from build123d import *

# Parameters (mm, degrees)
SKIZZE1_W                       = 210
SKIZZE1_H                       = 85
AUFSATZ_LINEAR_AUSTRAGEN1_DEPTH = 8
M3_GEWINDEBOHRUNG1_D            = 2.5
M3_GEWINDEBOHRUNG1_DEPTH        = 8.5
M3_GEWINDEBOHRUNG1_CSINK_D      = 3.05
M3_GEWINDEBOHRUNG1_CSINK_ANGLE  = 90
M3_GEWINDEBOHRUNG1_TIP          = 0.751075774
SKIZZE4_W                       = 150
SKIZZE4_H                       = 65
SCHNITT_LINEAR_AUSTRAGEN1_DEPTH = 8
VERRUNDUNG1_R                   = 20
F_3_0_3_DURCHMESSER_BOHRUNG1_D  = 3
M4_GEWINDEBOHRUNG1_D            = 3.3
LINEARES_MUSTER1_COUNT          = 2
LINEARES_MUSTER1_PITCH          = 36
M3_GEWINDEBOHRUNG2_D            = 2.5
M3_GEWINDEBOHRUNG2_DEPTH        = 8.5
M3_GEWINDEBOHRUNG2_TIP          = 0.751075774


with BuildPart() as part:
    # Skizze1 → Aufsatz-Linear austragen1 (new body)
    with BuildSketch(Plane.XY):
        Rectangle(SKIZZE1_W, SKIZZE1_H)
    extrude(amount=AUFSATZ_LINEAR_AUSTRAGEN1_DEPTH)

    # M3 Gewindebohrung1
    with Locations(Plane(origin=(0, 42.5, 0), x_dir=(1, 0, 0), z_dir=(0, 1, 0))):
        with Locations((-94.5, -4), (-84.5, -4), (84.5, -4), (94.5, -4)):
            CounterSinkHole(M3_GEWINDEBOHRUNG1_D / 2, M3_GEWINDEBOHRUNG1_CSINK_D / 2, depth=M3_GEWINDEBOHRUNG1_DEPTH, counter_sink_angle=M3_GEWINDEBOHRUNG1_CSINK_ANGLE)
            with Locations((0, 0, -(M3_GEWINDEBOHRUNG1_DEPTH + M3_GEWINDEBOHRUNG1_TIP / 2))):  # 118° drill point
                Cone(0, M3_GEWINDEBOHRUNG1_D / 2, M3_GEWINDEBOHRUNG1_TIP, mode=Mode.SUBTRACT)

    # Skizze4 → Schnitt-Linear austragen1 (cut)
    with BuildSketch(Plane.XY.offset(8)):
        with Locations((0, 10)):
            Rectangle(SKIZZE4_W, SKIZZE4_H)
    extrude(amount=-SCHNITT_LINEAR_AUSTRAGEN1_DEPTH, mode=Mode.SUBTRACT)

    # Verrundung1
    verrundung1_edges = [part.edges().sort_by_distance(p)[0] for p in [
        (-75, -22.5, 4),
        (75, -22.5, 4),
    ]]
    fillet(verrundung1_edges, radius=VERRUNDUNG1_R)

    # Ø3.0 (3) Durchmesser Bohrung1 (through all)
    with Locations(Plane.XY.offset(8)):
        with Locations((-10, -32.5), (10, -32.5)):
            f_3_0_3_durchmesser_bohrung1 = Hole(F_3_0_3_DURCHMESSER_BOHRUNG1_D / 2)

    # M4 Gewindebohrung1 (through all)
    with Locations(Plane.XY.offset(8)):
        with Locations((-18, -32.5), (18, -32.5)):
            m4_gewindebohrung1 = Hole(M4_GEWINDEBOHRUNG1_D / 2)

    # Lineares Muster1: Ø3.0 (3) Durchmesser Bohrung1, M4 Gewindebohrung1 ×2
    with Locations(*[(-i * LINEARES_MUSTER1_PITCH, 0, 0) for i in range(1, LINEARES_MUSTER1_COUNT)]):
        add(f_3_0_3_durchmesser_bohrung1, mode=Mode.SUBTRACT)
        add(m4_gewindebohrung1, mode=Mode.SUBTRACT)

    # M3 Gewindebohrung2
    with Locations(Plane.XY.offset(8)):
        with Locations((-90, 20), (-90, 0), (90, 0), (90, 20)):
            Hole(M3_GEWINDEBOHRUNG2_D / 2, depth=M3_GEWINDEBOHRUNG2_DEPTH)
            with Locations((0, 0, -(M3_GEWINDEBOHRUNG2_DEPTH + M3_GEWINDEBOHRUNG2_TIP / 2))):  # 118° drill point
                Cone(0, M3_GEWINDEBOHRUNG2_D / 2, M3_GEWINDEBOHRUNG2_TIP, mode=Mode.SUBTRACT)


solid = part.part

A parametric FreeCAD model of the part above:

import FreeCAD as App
import Part
import Sketcher
from FreeCAD import Vector


def edges_at(feature, points):
    """Names of the edges that pass closest to the given points."""
    edges = feature.Shape.Edges
    near = lambda p: min(range(len(edges)), key=lambda i: edges[i].distToShape(Part.Vertex(*p))[0])
    return sorted({f"Edge{near(p) + 1}" for p in points})


def add_polygon(sketch, points):
    """Adds a closed chain of lines whose ends are joined by coincident constraints."""
    first, n = sketch.GeometryCount, len(points)
    for a, b in zip(points, points[1:] + points[:1]):
        sketch.addGeometry(Part.LineSegment(App.Vector(*a, 0), App.Vector(*b, 0)), False)
    for i in range(n):
        sketch.addConstraint(Sketcher.Constraint("Coincident", first + i, 2, first + (i + 1) % n, 1))

doc = App.newDocument("Part")
body = doc.addObject("PartDesign::Body", "Body")

# Sketch on XY plane
sketch1 = body.newObject("Sketcher::SketchObject", "Sketch")
sketch1.AttachmentSupport = (doc.getObject("XY_Plane"), [""])
sketch1.MapMode = "FlatFace"
add_polygon(sketch1, [(-105, 42), (-105, -42), (105, -42), (105, 42)])  # lines 0-3
sketch1.addConstraint(Sketcher.Constraint("Vertical", 0))
sketch1.addConstraint(Sketcher.Constraint("Horizontal", 1))
sketch1.addConstraint(Sketcher.Constraint("Vertical", 2))
sketch1.addConstraint(Sketcher.Constraint("Horizontal", 3))
sketch1.addConstraint(Sketcher.Constraint("Symmetric", 0, 2, 2, 2, -1, 1))
sketch1.addConstraint(Sketcher.Constraint("DistanceX", 1, 1, 1, 2, 210.0))
sketch1.addConstraint(Sketcher.Constraint("DistanceY", 0, 2, 0, 1, 85.0))
pad1 = body.newObject("PartDesign::Pad", "Pad")
pad1.Profile = sketch1
pad1.Length = 8

# Sketch on XZ plane
sketch2 = body.newObject("Sketcher::SketchObject", "Sketch001")
sketch2.AttachmentSupport = (doc.getObject("XZ_Plane"), [""])
sketch2.MapMode = "FlatFace"
sketch2.AttachmentOffset = App.Placement(Vector(0, 0, -42.5), App.Rotation())
sketch2.addGeometry(Part.Circle(Vector(-94.5, 4, 0), Vector(0, 0, 1), 1.2), False)
sketch2.addGeometry(Part.Circle(Vector(-84.5, 4, 0), Vector(0, 0, 1), 1.2), False)
sketch2.addGeometry(Part.Circle(Vector(84.5, 4, 0), Vector(0, 0, 1), 1.2), False)
sketch2.addGeometry(Part.Circle(Vector(94.5, 4, 0), Vector(0, 0, 1), 1.2), False)
sketch2.addConstraint(Sketcher.Constraint("Equal", 0, 1))
sketch2.addConstraint(Sketcher.Constraint("Equal", 1, 2))
sketch2.addConstraint(Sketcher.Constraint("Equal", 2, 3))
sketch2.addConstraint(Sketcher.Constraint("Symmetric", 1, 3, 2, 3, -2))
sketch2.addConstraint(Sketcher.Constraint("Symmetric", 0, 3, 3, 3, -2))
sketch2.addConstraint(Sketcher.Constraint("Horizontal", 0, 3, 1, 3))
sketch2.addConstraint(Sketcher.Constraint("Diameter", 0, 2.5))
sketch2.addConstraint(Sketcher.Constraint("DistanceY", -1, 1, 0, 3, 4.0))
sketch2.addConstraint(Sketcher.Constraint("DistanceX", 0, 3, 1, 3, 10.0))
sketch2.addConstraint(Sketcher.Constraint("DistanceX", 1, 3, 2, 3, 169.0))
doc.recompute()
hole = body.newObject("PartDesign::Hole", "Hole")
hole.Profile = sketch2
hole.ThreadType = "None"
hole.Diameter = 2.5
hole.DepthType = "Dimension"
hole.Depth = 8.5
hole.DrillPoint = "Angled"
hole.DrillPointAngle = 118
hole.HoleCutType = "Countersink"
hole.HoleCutDiameter = 3.05
hole.HoleCutCountersinkAngle = 90
hole.Reversed = True

# Sketch on XY plane
sketch3 = body.newObject("Sketcher::SketchObject", "Sketch002")
sketch3.AttachmentSupport = (doc.getObject("XY_Plane"), [""])
sketch3.MapMode = "FlatFace"
sketch3.AttachmentOffset = App.Placement(Vector(0, 0, 8), App.Rotation())
add_polygon(sketch3, [(-75, 42), (-75, -22), (75, -22), (75, 42)])  # lines 0-3
sketch3.addConstraint(Sketcher.Constraint("Vertical", 0))
sketch3.addConstraint(Sketcher.Constraint("Horizontal", 1))
sketch3.addConstraint(Sketcher.Constraint("Vertical", 2))
sketch3.addConstraint(Sketcher.Constraint("Horizontal", 3))
sketch3.addConstraint(Sketcher.Constraint("DistanceX", 1, 1, 1, 2, 150.0))
sketch3.addConstraint(Sketcher.Constraint("DistanceY", 0, 2, 0, 1, 65.0))
sketch3.addConstraint(Sketcher.Constraint("DistanceX", 0, 2, -1, 1, 75.0))
sketch3.addConstraint(Sketcher.Constraint("DistanceY", 0, 2, -1, 1, 22.5))
pocket1 = body.newObject("PartDesign::Pocket", "Pocket")
pocket1.Profile = sketch3
pocket1.Length = 8
doc.recompute()

fillet = body.newObject("PartDesign::Fillet", "Fillet")
fillet.Base = (pocket1, edges_at(pocket1, [(-75, -22.5, 4), (75, -22.5, 4)]))
fillet.Radius = 20

# Sketch on XY plane
sketch4 = body.newObject("Sketcher::SketchObject", "Sketch003")
sketch4.AttachmentSupport = (doc.getObject("XY_Plane"), [""])
sketch4.MapMode = "FlatFace"
sketch4.AttachmentOffset = App.Placement(Vector(0, 0, 8), App.Rotation())
sketch4.addGeometry(Part.Circle(Vector(-10, -32.5, 0), Vector(0, 0, 1), 1.5), False)
sketch4.addGeometry(Part.Circle(Vector(10, -32.5, 0), Vector(0, 0, 1), 1.5), False)
sketch4.addConstraint(Sketcher.Constraint("Equal", 0, 1))
sketch4.addConstraint(Sketcher.Constraint("Symmetric", 0, 3, 1, 3, -2))
sketch4.addConstraint(Sketcher.Constraint("Diameter", 0, 3.0))
sketch4.addConstraint(Sketcher.Constraint("DistanceX", 0, 3, -1, 1, 10.0))
sketch4.addConstraint(Sketcher.Constraint("DistanceY", 0, 3, -1, 1, 32.5))
doc.recompute()
hole2 = body.newObject("PartDesign::Hole", "Hole001")
hole2.Profile = sketch4
hole2.ThreadType = "None"
hole2.Diameter = 3
hole2.DepthType = "ThroughAll"

# Sketch on XY plane
sketch5 = body.newObject("Sketcher::SketchObject", "Sketch004")
sketch5.AttachmentSupport = (doc.getObject("XY_Plane"), [""])
sketch5.MapMode = "FlatFace"
sketch5.AttachmentOffset = App.Placement(Vector(0, 0, 8), App.Rotation())
sketch5.addGeometry(Part.Circle(Vector(-18, -32.5, 0), Vector(0, 0, 1), 1.6), False)
sketch5.addGeometry(Part.Circle(Vector(18, -32.5, 0), Vector(0, 0, 1), 1.6), False)
sketch5.addConstraint(Sketcher.Constraint("Equal", 0, 1))
sketch5.addConstraint(Sketcher.Constraint("Symmetric", 0, 3, 1, 3, -2))
sketch5.addConstraint(Sketcher.Constraint("Diameter", 0, 3.3))
sketch5.addConstraint(Sketcher.Constraint("DistanceX", 0, 3, -1, 1, 18.0))
sketch5.addConstraint(Sketcher.Constraint("DistanceY", 0, 3, -1, 1, 32.5))
doc.recompute()
hole3 = body.newObject("PartDesign::Hole", "Hole002")
hole3.Profile = sketch5
hole3.ThreadType = "None"
hole3.Diameter = 3.3
hole3.DepthType = "ThroughAll"
doc.recompute()

linearpattern = body.newObject("PartDesign::LinearPattern", "LinearPattern")
linearpattern.Originals = [hole2, hole3]
linearpattern.Direction = (doc.getObject("X_Axis"), [""])
linearpattern.Mode = "offset"
linearpattern.Offset = 36
linearpattern.Occurrences = 2
linearpattern.Reversed = True
body.Tip = linearpattern

# Sketch on XY plane
sketch6 = body.newObject("Sketcher::SketchObject", "Sketch005")
sketch6.AttachmentSupport = (doc.getObject("XY_Plane"), [""])
sketch6.MapMode = "FlatFace"
sketch6.AttachmentOffset = App.Placement(Vector(0, 0, 8), App.Rotation())
sketch6.addGeometry(Part.Circle(Vector(-90, 20, 0), Vector(0, 0, 1), 1.2), False)
sketch6.addGeometry(Part.Circle(Vector(-90, 0, 0), Vector(0, 0, 1), 1.2), False)
sketch6.addGeometry(Part.Circle(Vector(90, 0, 0), Vector(0, 0, 1), 1.2), False)
sketch6.addGeometry(Part.Circle(Vector(90, 20, 0), Vector(0, 0, 1), 1.2), False)
sketch6.addConstraint(Sketcher.Constraint("Equal", 0, 1))
sketch6.addConstraint(Sketcher.Constraint("Equal", 1, 2))
sketch6.addConstraint(Sketcher.Constraint("Equal", 2, 3))
sketch6.addConstraint(Sketcher.Constraint("Symmetric", 1, 3, 2, 3, -1, 1))
sketch6.addConstraint(Sketcher.Constraint("Symmetric", 0, 3, 3, 3, -2))
sketch6.addConstraint(Sketcher.Constraint("PointOnObject", 1, 3, -1))
sketch6.addConstraint(Sketcher.Constraint("Vertical", 0, 3, 1, 3))
sketch6.addConstraint(Sketcher.Constraint("Diameter", 0, 2.5))
sketch6.addConstraint(Sketcher.Constraint("DistanceX", 0, 3, -1, 1, 90.0))
sketch6.addConstraint(Sketcher.Constraint("DistanceY", -1, 1, 0, 3, 20.0))
doc.recompute()
hole4 = body.newObject("PartDesign::Hole", "Hole003")
hole4.Profile = sketch6
hole4.ThreadType = "None"
hole4.Diameter = 2.5
hole4.DepthType = "Dimension"
hole4.Depth = 8.5
hole4.DrillPoint = "Angled"
hole4.DrillPointAngle = 118

doc.recompute()
